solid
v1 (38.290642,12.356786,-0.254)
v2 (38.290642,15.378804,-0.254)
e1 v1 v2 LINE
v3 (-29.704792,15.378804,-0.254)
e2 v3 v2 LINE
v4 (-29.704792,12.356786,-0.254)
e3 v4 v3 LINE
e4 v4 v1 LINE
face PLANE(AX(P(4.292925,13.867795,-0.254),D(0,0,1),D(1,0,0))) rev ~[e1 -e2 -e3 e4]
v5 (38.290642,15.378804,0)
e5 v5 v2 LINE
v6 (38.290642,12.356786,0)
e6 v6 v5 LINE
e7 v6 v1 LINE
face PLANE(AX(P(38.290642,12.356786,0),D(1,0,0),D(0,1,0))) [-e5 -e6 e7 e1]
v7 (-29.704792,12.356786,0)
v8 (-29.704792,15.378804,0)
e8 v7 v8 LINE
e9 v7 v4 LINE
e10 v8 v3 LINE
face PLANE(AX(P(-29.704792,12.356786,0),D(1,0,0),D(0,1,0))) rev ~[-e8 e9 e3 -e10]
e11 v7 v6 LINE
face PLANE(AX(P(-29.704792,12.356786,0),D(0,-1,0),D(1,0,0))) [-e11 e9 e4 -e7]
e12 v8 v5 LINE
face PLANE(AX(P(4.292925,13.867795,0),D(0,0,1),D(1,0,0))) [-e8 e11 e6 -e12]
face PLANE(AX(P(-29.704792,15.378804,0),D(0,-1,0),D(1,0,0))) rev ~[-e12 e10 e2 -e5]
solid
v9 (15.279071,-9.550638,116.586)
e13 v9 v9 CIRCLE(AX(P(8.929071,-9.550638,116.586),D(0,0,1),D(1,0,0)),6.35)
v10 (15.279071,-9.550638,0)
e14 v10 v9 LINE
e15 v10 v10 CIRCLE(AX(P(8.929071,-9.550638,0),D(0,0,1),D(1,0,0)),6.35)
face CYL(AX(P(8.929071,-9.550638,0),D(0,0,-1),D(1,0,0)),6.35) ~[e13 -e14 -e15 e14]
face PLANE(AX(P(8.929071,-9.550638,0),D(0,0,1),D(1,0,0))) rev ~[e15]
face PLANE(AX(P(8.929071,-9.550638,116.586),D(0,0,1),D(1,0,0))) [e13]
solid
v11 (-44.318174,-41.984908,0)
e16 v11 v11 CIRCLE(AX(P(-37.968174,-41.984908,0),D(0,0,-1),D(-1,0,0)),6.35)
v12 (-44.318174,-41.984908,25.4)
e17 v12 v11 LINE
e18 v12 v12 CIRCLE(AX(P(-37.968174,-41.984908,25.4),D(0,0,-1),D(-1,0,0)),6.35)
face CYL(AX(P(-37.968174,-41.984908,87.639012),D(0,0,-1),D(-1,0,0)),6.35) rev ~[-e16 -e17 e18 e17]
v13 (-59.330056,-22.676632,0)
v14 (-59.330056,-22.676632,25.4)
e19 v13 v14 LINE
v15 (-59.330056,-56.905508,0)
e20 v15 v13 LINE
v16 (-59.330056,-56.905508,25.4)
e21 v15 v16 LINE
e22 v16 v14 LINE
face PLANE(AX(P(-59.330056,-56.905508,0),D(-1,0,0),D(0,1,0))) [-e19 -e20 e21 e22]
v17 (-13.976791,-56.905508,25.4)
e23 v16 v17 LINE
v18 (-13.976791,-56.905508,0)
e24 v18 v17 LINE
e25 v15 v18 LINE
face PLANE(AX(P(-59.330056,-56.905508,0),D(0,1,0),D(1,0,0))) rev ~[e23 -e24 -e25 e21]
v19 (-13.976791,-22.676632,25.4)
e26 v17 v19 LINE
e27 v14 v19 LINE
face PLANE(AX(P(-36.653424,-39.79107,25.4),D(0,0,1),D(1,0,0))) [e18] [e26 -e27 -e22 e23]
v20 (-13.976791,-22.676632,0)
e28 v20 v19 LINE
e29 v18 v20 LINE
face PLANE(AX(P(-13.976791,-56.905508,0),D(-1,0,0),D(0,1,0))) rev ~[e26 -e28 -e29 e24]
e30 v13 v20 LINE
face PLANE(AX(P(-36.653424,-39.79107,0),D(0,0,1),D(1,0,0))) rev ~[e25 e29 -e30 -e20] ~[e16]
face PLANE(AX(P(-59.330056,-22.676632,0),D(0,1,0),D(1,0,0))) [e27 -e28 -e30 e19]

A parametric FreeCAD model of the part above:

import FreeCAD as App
import Part
import Sketcher
from FreeCAD import Vector
Q = App.Units.Quantity


def add_polygon(sketch, points):
    """Adds a closed chain of lines whose ends are joined by coincident constraints."""
    first, n = sketch.GeometryCount, len(points)
    for a, b in zip(points, points[1:] + points[:1]):
        sketch.addGeometry(Part.LineSegment(App.Vector(*a, 0), App.Vector(*b, 0)), False)
    for i in range(n):
        sketch.addConstraint(Sketcher.Constraint("Coincident", first + i, 2, first + (i + 1) % n, 1))

doc = App.newDocument("Part")
params = doc.addObject("Spreadsheet::Sheet", "Params")
for row, (alias, value) in enumerate([
    ("pad1_length", "0.01 in"),
    ("pad2_length", "1 in"),
    ("sketch3_diameter", "0.5 in"),
    ("hole_diameter", "0.5 in"),
    ("sketch4_diameter", "0.5 in"),
    ("pad3_length", "4.59 in"),
], start=1):
    params.set(f"A{row}", alias)
    params.set(f"B{row}", "=" + value)
    params.setAlias(f"B{row}", alias)

body = doc.addObject("PartDesign::Body", "Body")

# Sketch on XY plane
sketch1 = body.newObject("Sketcher::SketchObject", "Sketch")
sketch1.AttachmentSupport = (doc.getObject("XY_Plane"), [""])
sketch1.MapMode = "FlatFace"
add_polygon(sketch1, [(-29.704792, 15.378804), (-29.704792, 12.356786), (38.290642, 12.356786), (38.290642, 15.378804)])  # lines 0-3
sketch1.addConstraint([
    Sketcher.Constraint("Vertical", 0),
    Sketcher.Constraint("Horizontal", 1),
    Sketcher.Constraint("Vertical", 2),
    Sketcher.Constraint("Horizontal", 3),
    Sketcher.Constraint("DistanceY", 0, 2, 0, 1, Q("3.022018 mm")),
    Sketcher.Constraint("DistanceX", 1, 1, 1, 2, Q("67.995434 mm")),
    Sketcher.Constraint("DistanceX", -1, 1, 1, 2, Q("38.290642 mm")),
    Sketcher.Constraint("DistanceY", -1, 1, 0, 2, Q("12.356786 mm")),
])
pad1 = body.newObject("PartDesign::Pad", "Pad")
pad1.Profile = sketch1
pad1.setExpression("Length", "Params.pad1_length")
pad1.Reversed = True
body2 = doc.addObject("PartDesign::Body", "Body001")

# Sketch on XY plane
sketch2 = body2.newObject("Sketcher::SketchObject", "Sketch001")
sketch2.AttachmentSupport = (doc.getObject("XY_Plane001"), [""])
sketch2.MapMode = "FlatFace"
add_polygon(sketch2, [(-59.330056, -22.676632), (-59.330056, -56.905508), (-13.976791, -56.905508), (-13.976791, -22.676632)])  # lines 0-3
sketch2.addConstraint([
    Sketcher.Constraint("Vertical", 0),
    Sketcher.Constraint("Horizontal", 1),
    Sketcher.Constraint("Vertical", 2),
    Sketcher.Constraint("Horizontal", 3),
    Sketcher.Constraint("DistanceX", 1, 1, 1, 2, Q("45.353265 mm")),
    Sketcher.Constraint("DistanceY", 0, 2, 0, 1, Q("34.228876 mm")),
    Sketcher.Constraint("DistanceX", 1, 2, -1, 1, Q("13.976791 mm")),
    Sketcher.Constraint("DistanceY", 0, 2, -1, 1, Q("56.905508 mm")),
])
pad2 = body2.newObject("PartDesign::Pad", "Pad001")
pad2.Profile = sketch2
pad2.setExpression("Length", "Params.pad2_length")

# Sketch on XY plane
sketch3 = body2.newObject("Sketcher::SketchObject", "Sketch002")
sketch3.AttachmentSupport = (doc.getObject("XY_Plane001"), [""])
sketch3.MapMode = "FlatFace"
sketch3.AttachmentOffset = App.Placement(Vector(0, 0, 1 * 25.4), App.Rotation())
sketch3.addGeometry(Part.Circle(Vector(-37.968174, -41.984908, 0), Vector(0, 0, 1), 6.35), False)
sketch3.addConstraint([
    Sketcher.Constraint("Diameter", 0, Q("0.5 in")),
    Sketcher.Constraint("DistanceX", 0, 3, -1, 1, Q("37.968174 mm")),
    Sketcher.Constraint("DistanceY", 0, 3, -1, 1, Q("41.984908 mm")),
])
sketch3.setExpression("Constraints[0]", "Params.sketch3_diameter")
doc.recompute()
hole = body2.newObject("PartDesign::Hole", "Hole")
hole.Profile = sketch3
hole.ThreadType = "None"
hole.setExpression("Diameter", "Params.hole_diameter")
hole.DepthType = "ThroughAll"
body3 = doc.addObject("PartDesign::Body", "Body002")

# Sketch on XY plane
sketch4 = body3.newObject("Sketcher::SketchObject", "Sketch003")
sketch4.AttachmentSupport = (doc.getObject("XY_Plane002"), [""])
sketch4.MapMode = "FlatFace"
sketch4.addGeometry(Part.Circle(Vector(8.929071, -9.550638, 0), Vector(0, 0, 1), 6.35), False)
sketch4.addConstraint([
    Sketcher.Constraint("Diameter", 0, Q("0.5 in")),
    Sketcher.Constraint("DistanceX", -1, 1, 0, 3, Q("8.929071 mm")),
    Sketcher.Constraint("DistanceY", 0, 3, -1, 1, Q("9.550638 mm")),
])
sketch4.setExpression("Constraints[0]", "Params.sketch4_diameter")
pad3 = body3.newObject("PartDesign::Pad", "Pad002")
pad3.Profile = sketch4
pad3.setExpression("Length", "Params.pad3_length")

doc.recompute()
